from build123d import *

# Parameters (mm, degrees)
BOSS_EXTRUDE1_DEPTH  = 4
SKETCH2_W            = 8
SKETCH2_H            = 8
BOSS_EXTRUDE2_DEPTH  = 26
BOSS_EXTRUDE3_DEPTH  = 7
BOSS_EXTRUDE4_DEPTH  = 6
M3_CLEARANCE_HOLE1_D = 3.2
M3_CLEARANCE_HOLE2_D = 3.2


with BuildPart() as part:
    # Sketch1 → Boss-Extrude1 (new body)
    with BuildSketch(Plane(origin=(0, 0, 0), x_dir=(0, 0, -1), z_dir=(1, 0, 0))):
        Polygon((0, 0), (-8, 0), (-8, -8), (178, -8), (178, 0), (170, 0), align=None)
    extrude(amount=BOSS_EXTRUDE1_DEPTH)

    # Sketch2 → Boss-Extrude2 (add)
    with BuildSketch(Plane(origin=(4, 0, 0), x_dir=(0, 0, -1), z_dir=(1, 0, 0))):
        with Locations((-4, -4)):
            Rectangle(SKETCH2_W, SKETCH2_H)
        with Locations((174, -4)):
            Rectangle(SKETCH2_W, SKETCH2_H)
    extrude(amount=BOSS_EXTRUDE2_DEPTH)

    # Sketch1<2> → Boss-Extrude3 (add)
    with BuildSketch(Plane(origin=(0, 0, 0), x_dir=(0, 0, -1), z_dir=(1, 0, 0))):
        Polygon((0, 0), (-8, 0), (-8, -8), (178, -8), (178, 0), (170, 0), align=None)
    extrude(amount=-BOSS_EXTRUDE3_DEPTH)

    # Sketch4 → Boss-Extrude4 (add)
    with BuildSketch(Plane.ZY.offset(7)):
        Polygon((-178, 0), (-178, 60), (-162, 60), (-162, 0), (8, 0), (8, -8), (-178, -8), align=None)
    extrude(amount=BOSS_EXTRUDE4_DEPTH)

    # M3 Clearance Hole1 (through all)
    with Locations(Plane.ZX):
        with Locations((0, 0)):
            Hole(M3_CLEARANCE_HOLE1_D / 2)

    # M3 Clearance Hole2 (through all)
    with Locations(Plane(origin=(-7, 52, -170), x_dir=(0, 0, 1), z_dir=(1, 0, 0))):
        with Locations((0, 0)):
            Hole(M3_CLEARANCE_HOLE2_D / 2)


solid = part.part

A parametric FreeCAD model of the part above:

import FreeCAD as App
import Part
import Sketcher

V = App.Vector

doc = App.newDocument("Part")
body = doc.addObject("PartDesign::Body", "Body")

sketch1 = body.newObject("Sketcher::SketchObject", "Sketch")
sketch1.AttachmentSupport = (doc.getObject("YZ_Plane"), [""])
sketch1.MapMode = "FlatFace"
sketch1.addGeometry([
    Part.LineSegment(V(0, 8, 0), V(-8, 8, 0)),
    Part.LineSegment(V(-8, 8, 0), V(-8, -178, 0)),
    Part.LineSegment(V(-8, -178, 0), V(0, -178, 0)),
    Part.LineSegment(V(0, -178, 0), V(0, 8, 0)),
], False)
sketch1.addConstraint([
    Sketcher.Constraint("Coincident", 0, 2, 1, 1),
    Sketcher.Constraint("Coincident", 1, 2, 2, 1),
    Sketcher.Constraint("Coincident", 2, 2, 3, 1),
    Sketcher.Constraint("Coincident", 3, 2, 0, 1),
    Sketcher.Constraint("Horizontal", 0),
    Sketcher.Constraint("Vertical", 1),
    Sketcher.Constraint("Horizontal", 2),
    Sketcher.Constraint("Vertical", 3),
    Sketcher.Constraint("PointOnObject", 2, 2, -2),
    Sketcher.Constraint("DistanceX", 0, 2, 0, 1, 8.0),
    Sketcher.Constraint("DistanceY", 1, 2, 1, 1, 186.0),
    Sketcher.Constraint("DistanceY", -1, 1, 0, 2, 8.0),
])
pad1 = body.newObject("PartDesign::Pad", "Pad")
pad1.Profile = sketch1
pad1.Length = 4

sketch2 = body.newObject("Sketcher::SketchObject", "Sketch001")
sketch2.AttachmentSupport = (doc.getObject("YZ_Plane"), [""])
sketch2.MapMode = "FlatFace"
sketch2.AttachmentOffset = App.Placement(V(0, 0, 4), App.Rotation())
sketch2.addGeometry([
    Part.LineSegment(V(0, 8, 0), V(-8, 8, 0)),
    Part.LineSegment(V(-8, 8, 0), V(-8, 0, 0)),
    Part.LineSegment(V(-8, 0, 0), V(0, 0, 0)),
    Part.LineSegment(V(0, 0, 0), V(0, 8, 0)),
    Part.LineSegment(V(0, -170, 0), V(-8, -170, 0)),
    Part.LineSegment(V(-8, -170, 0), V(-8, -178, 0)),
    Part.LineSegment(V(-8, -178, 0), V(0, -178, 0)),
    Part.LineSegment(V(0, -178, 0), V(0, -170, 0)),
], False)
sketch2.addConstraint([
    Sketcher.Constraint("Coincident", 0, 2, 1, 1),
    Sketcher.Constraint("Coincident", 1, 2, 2, 1),
    Sketcher.Constraint("Coincident", 2, 2, 3, 1),
    Sketcher.Constraint("Coincident", 3, 2, 0, 1),
    Sketcher.Constraint("Coincident", 4, 2, 5, 1),
    Sketcher.Constraint("Coincident", 5, 2, 6, 1),
    Sketcher.Constraint("Coincident", 6, 2, 7, 1),
    Sketcher.Constraint("Coincident", 7, 2, 4, 1),
    Sketcher.Constraint("Horizontal", 0),
    Sketcher.Constraint("Vertical", 1),
    Sketcher.Constraint("Horizontal", 2),
    Sketcher.Constraint("Vertical", 3),
    Sketcher.Constraint("Horizontal", 4),
    Sketcher.Constraint("Vertical", 5),
    Sketcher.Constraint("Horizontal", 6),
    Sketcher.Constraint("Vertical", 7),
    Sketcher.Constraint("Coincident", 2, 2, -1, 1),
    Sketcher.Constraint("PointOnObject", 6, 2, -2),
    Sketcher.Constraint("Vertical", 1, 2, 4, 2),
    Sketcher.Constraint("Equal", 6, 1),
    Sketcher.Constraint("Equal", 3, 5),
    Sketcher.Constraint("DistanceX", 0, 2, 0, 1, 8.0),
    Sketcher.Constraint("DistanceY", 4, 2, -1, 1, 170.0),
])
pad2 = body.newObject("PartDesign::Pad", "Pad001")
pad2.Profile = sketch2
pad2.Length = 26

sketch3 = body.newObject("Sketcher::SketchObject", "Sketch002")
sketch3.AttachmentSupport = (doc.getObject("YZ_Plane"), [""])
sketch3.MapMode = "FlatFace"
sketch3.addGeometry([
    Part.LineSegment(V(0, 8, 0), V(-8, 8, 0)),
    Part.LineSegment(V(-8, 8, 0), V(-8, -178, 0)),
    Part.LineSegment(V(-8, -178, 0), V(0, -178, 0)),
    Part.LineSegment(V(0, -178, 0), V(0, 8, 0)),
], False)
sketch3.addConstraint([
    Sketcher.Constraint("Coincident", 0, 2, 1, 1),
    Sketcher.Constraint("Coincident", 1, 2, 2, 1),
    Sketcher.Constraint("Coincident", 2, 2, 3, 1),
    Sketcher.Constraint("Coincident", 3, 2, 0, 1),
    Sketcher.Constraint("Horizontal", 0),
    Sketcher.Constraint("Vertical", 1),
    Sketcher.Constraint("Horizontal", 2),
    Sketcher.Constraint("Vertical", 3),
    Sketcher.Constraint("PointOnObject", 2, 2, -2),
    Sketcher.Constraint("DistanceX", 0, 2, 0, 1, 8.0),
    Sketcher.Constraint("DistanceY", 1, 2, 1, 1, 186.0),
    Sketcher.Constraint("DistanceY", -1, 1, 0, 2, 8.0),
])
pad3 = body.newObject("PartDesign::Pad", "Pad002")
pad3.Profile = sketch3
pad3.Length = 7
pad3.Reversed = True

sketch4 = body.newObject("Sketcher::SketchObject", "Sketch003")
sketch4.AttachmentSupport = (doc.getObject("YZ_Plane"), [""])
sketch4.MapMode = "FlatFace"
sketch4.AttachmentOffset = App.Placement(V(0, 0, -7), App.Rotation())
sketch4.addGeometry([
    Part.LineSegment(V(60, -178, 0), V(-8, -178, 0)),
    Part.LineSegment(V(-8, -178, 0), V(-8, 8, 0)),
    Part.LineSegment(V(-8, 8, 0), V(0, 8, 0)),
    Part.LineSegment(V(0, 8, 0), V(0, -162, 0)),
    Part.LineSegment(V(0, -162, 0), V(60, -162, 0)),
    Part.LineSegment(V(60, -162, 0), V(60, -178, 0)),
], False)
sketch4.addConstraint([
    Sketcher.Constraint("Coincident", 0, 2, 1, 1),
    Sketcher.Constraint("Coincident", 1, 2, 2, 1),
    Sketcher.Constraint("Coincident", 2, 2, 3, 1),
    Sketcher.Constraint("Coincident", 3, 2, 4, 1),
    Sketcher.Constraint("Coincident", 4, 2, 5, 1),
    Sketcher.Constraint("Coincident", 5, 2, 0, 1),
    Sketcher.Constraint("Horizontal", 0),
    Sketcher.Constraint("Vertical", 1),
    Sketcher.Constraint("Horizontal", 2),
    Sketcher.Constraint("Vertical", 3),
    Sketcher.Constraint("Horizontal", 4),
    Sketcher.Constraint("Vertical", 5),
    Sketcher.Constraint("PointOnObject", 2, 2, -2),
    Sketcher.Constraint("DistanceX", 0, 2, 0, 1, 68.0),
    Sketcher.Constraint("DistanceX", 2, 1, 2, 2, 8.0),
    Sketcher.Constraint("DistanceY", 1, 1, 1, 2, 186.0),
    Sketcher.Constraint("DistanceY", 3, 2, 3, 1, 170.0),
    Sketcher.Constraint("DistanceY", 0, 2, -1, 1, 178.0),
])
pad4 = body.newObject("PartDesign::Pad", "Pad003")
pad4.Profile = sketch4
pad4.Length = 6
pad4.Reversed = True

sketch5 = body.newObject("Sketcher::SketchObject", "Sketch004")
sketch5.AttachmentSupport = (doc.getObject("XZ_Plane"), [""])
sketch5.MapMode = "FlatFace"
sketch5.addGeometry(Part.Circle(V(0, 0, 0), V(0, 0, 1), 1.6), False)
sketch5.addConstraint([
    Sketcher.Constraint("Coincident", 0, 3, -1, 1),
    Sketcher.Constraint("Diameter", 0, 3.2),
])
doc.recompute()
hole = body.newObject("PartDesign::Hole", "Hole")
hole.Profile = sketch5
hole.ThreadType = "None"
hole.Diameter = 3.2
hole.DepthType = "ThroughAll"
hole.Reversed = True

sketch6 = body.newObject("Sketcher::SketchObject", "Sketch005")
sketch6.AttachmentSupport = (doc.getObject("YZ_Plane"), [""])
sketch6.MapMode = "FlatFace"
sketch6.AttachmentOffset = App.Placement(V(0, 0, -7), App.Rotation())
sketch6.addGeometry(Part.Circle(V(52, -170, 0), V(0, 0, 1), 1.6), False)
sketch6.addConstraint([
    Sketcher.Constraint("Diameter", 0, 3.2),
    Sketcher.Constraint("DistanceX", -1, 1, 0, 3, 52.0),
    Sketcher.Constraint("DistanceY", 0, 3, -1, 1, 170.0),
])
doc.recompute()
hole2 = body.newObject("PartDesign::Hole", "Hole001")
hole2.Profile = sketch6
hole2.ThreadType = "None"
hole2.Diameter = 3.2
hole2.DepthType = "ThroughAll"

doc.recompute()
